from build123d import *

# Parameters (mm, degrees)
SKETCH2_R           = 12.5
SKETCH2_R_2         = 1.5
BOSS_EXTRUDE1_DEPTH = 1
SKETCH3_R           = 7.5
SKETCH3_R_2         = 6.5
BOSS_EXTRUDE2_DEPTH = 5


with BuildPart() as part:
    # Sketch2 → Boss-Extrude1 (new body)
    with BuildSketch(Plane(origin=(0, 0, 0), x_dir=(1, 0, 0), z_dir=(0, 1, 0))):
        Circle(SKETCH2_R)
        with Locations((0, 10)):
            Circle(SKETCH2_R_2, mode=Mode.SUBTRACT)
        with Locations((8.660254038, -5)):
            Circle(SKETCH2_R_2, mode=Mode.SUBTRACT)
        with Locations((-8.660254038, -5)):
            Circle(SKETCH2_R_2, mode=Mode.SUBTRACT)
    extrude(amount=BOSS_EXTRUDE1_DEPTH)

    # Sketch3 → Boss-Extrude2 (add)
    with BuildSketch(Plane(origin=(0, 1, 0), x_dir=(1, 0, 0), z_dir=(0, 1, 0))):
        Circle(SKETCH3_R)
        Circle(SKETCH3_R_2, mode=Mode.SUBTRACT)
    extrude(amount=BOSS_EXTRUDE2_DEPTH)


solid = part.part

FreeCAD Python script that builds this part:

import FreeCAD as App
import Part
import Sketcher
Q = App.Units.Quantity

doc = App.newDocument("Part")
body = doc.addObject("PartDesign::Body", "Body")

sketch1 = body.newObject("Sketcher::SketchObject", "Sketch")
sketch1.AttachmentSupport = (doc.getObject("XZ_Plane"), [""])
sketch1.MapMode = "FlatFace"
sketch1.addGeometry([
    Part.Circle(App.Vector(0, 0, 0), App.Vector(0, 0, 1), 12.5),
    Part.Circle(App.Vector(-8.7, 5, 0), App.Vector(0, 0, 1), 1.5),
    Part.Circle(App.Vector(8.7, 5, 0), App.Vector(0, 0, 1), 1.5),
    Part.Circle(App.Vector(0, -10, 0), App.Vector(0, 0, 1), 1.5),
], False)
sketch1.addConstraint([
    Sketcher.Constraint("Coincident", 0, 3, -1, 1),
    Sketcher.Constraint("Equal", 1, 2),
    Sketcher.Constraint("Equal", 2, 3),
    Sketcher.Constraint("Symmetric", 1, 3, 2, 3, -2),
    Sketcher.Constraint("PointOnObject", 3, 3, -2),
    Sketcher.Constraint("Diameter", 0, Q("25 mm")),
    Sketcher.Constraint("Diameter", 1, Q("3 mm")),
    Sketcher.Constraint("DistanceY", -1, 1, 1, 3, Q("5 mm")),
    Sketcher.Constraint("DistanceY", 3, 3, -1, 1, Q("10 mm")),
    Sketcher.Constraint("DistanceX", 1, 3, 2, 3, Q("17.320508 mm")),
])
pad1 = body.newObject("PartDesign::Pad", "Pad")
pad1.Profile = sketch1
pad1.Length = 1
pad1.Reversed = True

sketch2 = body.newObject("Sketcher::SketchObject", "Sketch001")
sketch2.AttachmentSupport = (doc.getObject("XZ_Plane"), [""])
sketch2.MapMode = "FlatFace"
sketch2.AttachmentOffset = App.Placement(App.Vector(0, 0, -1), App.Rotation())
sketch2.addGeometry([
    Part.Circle(App.Vector(0, 0, 0), App.Vector(0, 0, 1), 8),
    Part.Circle(App.Vector(0, 0, 0), App.Vector(0, 0, 1), 6),
], False)
sketch2.addConstraint([
    Sketcher.Constraint("Coincident", 0, 3, -1, 1),
    Sketcher.Constraint("Coincident", 1, 3, -1, 1),
    Sketcher.Constraint("Diameter", 0, Q("15 mm")),
    Sketcher.Constraint("Diameter", 1, Q("13 mm")),
])
pad2 = body.newObject("PartDesign::Pad", "Pad001")
pad2.Profile = sketch2
pad2.Length = 5
pad2.Reversed = True

doc.recompute()
